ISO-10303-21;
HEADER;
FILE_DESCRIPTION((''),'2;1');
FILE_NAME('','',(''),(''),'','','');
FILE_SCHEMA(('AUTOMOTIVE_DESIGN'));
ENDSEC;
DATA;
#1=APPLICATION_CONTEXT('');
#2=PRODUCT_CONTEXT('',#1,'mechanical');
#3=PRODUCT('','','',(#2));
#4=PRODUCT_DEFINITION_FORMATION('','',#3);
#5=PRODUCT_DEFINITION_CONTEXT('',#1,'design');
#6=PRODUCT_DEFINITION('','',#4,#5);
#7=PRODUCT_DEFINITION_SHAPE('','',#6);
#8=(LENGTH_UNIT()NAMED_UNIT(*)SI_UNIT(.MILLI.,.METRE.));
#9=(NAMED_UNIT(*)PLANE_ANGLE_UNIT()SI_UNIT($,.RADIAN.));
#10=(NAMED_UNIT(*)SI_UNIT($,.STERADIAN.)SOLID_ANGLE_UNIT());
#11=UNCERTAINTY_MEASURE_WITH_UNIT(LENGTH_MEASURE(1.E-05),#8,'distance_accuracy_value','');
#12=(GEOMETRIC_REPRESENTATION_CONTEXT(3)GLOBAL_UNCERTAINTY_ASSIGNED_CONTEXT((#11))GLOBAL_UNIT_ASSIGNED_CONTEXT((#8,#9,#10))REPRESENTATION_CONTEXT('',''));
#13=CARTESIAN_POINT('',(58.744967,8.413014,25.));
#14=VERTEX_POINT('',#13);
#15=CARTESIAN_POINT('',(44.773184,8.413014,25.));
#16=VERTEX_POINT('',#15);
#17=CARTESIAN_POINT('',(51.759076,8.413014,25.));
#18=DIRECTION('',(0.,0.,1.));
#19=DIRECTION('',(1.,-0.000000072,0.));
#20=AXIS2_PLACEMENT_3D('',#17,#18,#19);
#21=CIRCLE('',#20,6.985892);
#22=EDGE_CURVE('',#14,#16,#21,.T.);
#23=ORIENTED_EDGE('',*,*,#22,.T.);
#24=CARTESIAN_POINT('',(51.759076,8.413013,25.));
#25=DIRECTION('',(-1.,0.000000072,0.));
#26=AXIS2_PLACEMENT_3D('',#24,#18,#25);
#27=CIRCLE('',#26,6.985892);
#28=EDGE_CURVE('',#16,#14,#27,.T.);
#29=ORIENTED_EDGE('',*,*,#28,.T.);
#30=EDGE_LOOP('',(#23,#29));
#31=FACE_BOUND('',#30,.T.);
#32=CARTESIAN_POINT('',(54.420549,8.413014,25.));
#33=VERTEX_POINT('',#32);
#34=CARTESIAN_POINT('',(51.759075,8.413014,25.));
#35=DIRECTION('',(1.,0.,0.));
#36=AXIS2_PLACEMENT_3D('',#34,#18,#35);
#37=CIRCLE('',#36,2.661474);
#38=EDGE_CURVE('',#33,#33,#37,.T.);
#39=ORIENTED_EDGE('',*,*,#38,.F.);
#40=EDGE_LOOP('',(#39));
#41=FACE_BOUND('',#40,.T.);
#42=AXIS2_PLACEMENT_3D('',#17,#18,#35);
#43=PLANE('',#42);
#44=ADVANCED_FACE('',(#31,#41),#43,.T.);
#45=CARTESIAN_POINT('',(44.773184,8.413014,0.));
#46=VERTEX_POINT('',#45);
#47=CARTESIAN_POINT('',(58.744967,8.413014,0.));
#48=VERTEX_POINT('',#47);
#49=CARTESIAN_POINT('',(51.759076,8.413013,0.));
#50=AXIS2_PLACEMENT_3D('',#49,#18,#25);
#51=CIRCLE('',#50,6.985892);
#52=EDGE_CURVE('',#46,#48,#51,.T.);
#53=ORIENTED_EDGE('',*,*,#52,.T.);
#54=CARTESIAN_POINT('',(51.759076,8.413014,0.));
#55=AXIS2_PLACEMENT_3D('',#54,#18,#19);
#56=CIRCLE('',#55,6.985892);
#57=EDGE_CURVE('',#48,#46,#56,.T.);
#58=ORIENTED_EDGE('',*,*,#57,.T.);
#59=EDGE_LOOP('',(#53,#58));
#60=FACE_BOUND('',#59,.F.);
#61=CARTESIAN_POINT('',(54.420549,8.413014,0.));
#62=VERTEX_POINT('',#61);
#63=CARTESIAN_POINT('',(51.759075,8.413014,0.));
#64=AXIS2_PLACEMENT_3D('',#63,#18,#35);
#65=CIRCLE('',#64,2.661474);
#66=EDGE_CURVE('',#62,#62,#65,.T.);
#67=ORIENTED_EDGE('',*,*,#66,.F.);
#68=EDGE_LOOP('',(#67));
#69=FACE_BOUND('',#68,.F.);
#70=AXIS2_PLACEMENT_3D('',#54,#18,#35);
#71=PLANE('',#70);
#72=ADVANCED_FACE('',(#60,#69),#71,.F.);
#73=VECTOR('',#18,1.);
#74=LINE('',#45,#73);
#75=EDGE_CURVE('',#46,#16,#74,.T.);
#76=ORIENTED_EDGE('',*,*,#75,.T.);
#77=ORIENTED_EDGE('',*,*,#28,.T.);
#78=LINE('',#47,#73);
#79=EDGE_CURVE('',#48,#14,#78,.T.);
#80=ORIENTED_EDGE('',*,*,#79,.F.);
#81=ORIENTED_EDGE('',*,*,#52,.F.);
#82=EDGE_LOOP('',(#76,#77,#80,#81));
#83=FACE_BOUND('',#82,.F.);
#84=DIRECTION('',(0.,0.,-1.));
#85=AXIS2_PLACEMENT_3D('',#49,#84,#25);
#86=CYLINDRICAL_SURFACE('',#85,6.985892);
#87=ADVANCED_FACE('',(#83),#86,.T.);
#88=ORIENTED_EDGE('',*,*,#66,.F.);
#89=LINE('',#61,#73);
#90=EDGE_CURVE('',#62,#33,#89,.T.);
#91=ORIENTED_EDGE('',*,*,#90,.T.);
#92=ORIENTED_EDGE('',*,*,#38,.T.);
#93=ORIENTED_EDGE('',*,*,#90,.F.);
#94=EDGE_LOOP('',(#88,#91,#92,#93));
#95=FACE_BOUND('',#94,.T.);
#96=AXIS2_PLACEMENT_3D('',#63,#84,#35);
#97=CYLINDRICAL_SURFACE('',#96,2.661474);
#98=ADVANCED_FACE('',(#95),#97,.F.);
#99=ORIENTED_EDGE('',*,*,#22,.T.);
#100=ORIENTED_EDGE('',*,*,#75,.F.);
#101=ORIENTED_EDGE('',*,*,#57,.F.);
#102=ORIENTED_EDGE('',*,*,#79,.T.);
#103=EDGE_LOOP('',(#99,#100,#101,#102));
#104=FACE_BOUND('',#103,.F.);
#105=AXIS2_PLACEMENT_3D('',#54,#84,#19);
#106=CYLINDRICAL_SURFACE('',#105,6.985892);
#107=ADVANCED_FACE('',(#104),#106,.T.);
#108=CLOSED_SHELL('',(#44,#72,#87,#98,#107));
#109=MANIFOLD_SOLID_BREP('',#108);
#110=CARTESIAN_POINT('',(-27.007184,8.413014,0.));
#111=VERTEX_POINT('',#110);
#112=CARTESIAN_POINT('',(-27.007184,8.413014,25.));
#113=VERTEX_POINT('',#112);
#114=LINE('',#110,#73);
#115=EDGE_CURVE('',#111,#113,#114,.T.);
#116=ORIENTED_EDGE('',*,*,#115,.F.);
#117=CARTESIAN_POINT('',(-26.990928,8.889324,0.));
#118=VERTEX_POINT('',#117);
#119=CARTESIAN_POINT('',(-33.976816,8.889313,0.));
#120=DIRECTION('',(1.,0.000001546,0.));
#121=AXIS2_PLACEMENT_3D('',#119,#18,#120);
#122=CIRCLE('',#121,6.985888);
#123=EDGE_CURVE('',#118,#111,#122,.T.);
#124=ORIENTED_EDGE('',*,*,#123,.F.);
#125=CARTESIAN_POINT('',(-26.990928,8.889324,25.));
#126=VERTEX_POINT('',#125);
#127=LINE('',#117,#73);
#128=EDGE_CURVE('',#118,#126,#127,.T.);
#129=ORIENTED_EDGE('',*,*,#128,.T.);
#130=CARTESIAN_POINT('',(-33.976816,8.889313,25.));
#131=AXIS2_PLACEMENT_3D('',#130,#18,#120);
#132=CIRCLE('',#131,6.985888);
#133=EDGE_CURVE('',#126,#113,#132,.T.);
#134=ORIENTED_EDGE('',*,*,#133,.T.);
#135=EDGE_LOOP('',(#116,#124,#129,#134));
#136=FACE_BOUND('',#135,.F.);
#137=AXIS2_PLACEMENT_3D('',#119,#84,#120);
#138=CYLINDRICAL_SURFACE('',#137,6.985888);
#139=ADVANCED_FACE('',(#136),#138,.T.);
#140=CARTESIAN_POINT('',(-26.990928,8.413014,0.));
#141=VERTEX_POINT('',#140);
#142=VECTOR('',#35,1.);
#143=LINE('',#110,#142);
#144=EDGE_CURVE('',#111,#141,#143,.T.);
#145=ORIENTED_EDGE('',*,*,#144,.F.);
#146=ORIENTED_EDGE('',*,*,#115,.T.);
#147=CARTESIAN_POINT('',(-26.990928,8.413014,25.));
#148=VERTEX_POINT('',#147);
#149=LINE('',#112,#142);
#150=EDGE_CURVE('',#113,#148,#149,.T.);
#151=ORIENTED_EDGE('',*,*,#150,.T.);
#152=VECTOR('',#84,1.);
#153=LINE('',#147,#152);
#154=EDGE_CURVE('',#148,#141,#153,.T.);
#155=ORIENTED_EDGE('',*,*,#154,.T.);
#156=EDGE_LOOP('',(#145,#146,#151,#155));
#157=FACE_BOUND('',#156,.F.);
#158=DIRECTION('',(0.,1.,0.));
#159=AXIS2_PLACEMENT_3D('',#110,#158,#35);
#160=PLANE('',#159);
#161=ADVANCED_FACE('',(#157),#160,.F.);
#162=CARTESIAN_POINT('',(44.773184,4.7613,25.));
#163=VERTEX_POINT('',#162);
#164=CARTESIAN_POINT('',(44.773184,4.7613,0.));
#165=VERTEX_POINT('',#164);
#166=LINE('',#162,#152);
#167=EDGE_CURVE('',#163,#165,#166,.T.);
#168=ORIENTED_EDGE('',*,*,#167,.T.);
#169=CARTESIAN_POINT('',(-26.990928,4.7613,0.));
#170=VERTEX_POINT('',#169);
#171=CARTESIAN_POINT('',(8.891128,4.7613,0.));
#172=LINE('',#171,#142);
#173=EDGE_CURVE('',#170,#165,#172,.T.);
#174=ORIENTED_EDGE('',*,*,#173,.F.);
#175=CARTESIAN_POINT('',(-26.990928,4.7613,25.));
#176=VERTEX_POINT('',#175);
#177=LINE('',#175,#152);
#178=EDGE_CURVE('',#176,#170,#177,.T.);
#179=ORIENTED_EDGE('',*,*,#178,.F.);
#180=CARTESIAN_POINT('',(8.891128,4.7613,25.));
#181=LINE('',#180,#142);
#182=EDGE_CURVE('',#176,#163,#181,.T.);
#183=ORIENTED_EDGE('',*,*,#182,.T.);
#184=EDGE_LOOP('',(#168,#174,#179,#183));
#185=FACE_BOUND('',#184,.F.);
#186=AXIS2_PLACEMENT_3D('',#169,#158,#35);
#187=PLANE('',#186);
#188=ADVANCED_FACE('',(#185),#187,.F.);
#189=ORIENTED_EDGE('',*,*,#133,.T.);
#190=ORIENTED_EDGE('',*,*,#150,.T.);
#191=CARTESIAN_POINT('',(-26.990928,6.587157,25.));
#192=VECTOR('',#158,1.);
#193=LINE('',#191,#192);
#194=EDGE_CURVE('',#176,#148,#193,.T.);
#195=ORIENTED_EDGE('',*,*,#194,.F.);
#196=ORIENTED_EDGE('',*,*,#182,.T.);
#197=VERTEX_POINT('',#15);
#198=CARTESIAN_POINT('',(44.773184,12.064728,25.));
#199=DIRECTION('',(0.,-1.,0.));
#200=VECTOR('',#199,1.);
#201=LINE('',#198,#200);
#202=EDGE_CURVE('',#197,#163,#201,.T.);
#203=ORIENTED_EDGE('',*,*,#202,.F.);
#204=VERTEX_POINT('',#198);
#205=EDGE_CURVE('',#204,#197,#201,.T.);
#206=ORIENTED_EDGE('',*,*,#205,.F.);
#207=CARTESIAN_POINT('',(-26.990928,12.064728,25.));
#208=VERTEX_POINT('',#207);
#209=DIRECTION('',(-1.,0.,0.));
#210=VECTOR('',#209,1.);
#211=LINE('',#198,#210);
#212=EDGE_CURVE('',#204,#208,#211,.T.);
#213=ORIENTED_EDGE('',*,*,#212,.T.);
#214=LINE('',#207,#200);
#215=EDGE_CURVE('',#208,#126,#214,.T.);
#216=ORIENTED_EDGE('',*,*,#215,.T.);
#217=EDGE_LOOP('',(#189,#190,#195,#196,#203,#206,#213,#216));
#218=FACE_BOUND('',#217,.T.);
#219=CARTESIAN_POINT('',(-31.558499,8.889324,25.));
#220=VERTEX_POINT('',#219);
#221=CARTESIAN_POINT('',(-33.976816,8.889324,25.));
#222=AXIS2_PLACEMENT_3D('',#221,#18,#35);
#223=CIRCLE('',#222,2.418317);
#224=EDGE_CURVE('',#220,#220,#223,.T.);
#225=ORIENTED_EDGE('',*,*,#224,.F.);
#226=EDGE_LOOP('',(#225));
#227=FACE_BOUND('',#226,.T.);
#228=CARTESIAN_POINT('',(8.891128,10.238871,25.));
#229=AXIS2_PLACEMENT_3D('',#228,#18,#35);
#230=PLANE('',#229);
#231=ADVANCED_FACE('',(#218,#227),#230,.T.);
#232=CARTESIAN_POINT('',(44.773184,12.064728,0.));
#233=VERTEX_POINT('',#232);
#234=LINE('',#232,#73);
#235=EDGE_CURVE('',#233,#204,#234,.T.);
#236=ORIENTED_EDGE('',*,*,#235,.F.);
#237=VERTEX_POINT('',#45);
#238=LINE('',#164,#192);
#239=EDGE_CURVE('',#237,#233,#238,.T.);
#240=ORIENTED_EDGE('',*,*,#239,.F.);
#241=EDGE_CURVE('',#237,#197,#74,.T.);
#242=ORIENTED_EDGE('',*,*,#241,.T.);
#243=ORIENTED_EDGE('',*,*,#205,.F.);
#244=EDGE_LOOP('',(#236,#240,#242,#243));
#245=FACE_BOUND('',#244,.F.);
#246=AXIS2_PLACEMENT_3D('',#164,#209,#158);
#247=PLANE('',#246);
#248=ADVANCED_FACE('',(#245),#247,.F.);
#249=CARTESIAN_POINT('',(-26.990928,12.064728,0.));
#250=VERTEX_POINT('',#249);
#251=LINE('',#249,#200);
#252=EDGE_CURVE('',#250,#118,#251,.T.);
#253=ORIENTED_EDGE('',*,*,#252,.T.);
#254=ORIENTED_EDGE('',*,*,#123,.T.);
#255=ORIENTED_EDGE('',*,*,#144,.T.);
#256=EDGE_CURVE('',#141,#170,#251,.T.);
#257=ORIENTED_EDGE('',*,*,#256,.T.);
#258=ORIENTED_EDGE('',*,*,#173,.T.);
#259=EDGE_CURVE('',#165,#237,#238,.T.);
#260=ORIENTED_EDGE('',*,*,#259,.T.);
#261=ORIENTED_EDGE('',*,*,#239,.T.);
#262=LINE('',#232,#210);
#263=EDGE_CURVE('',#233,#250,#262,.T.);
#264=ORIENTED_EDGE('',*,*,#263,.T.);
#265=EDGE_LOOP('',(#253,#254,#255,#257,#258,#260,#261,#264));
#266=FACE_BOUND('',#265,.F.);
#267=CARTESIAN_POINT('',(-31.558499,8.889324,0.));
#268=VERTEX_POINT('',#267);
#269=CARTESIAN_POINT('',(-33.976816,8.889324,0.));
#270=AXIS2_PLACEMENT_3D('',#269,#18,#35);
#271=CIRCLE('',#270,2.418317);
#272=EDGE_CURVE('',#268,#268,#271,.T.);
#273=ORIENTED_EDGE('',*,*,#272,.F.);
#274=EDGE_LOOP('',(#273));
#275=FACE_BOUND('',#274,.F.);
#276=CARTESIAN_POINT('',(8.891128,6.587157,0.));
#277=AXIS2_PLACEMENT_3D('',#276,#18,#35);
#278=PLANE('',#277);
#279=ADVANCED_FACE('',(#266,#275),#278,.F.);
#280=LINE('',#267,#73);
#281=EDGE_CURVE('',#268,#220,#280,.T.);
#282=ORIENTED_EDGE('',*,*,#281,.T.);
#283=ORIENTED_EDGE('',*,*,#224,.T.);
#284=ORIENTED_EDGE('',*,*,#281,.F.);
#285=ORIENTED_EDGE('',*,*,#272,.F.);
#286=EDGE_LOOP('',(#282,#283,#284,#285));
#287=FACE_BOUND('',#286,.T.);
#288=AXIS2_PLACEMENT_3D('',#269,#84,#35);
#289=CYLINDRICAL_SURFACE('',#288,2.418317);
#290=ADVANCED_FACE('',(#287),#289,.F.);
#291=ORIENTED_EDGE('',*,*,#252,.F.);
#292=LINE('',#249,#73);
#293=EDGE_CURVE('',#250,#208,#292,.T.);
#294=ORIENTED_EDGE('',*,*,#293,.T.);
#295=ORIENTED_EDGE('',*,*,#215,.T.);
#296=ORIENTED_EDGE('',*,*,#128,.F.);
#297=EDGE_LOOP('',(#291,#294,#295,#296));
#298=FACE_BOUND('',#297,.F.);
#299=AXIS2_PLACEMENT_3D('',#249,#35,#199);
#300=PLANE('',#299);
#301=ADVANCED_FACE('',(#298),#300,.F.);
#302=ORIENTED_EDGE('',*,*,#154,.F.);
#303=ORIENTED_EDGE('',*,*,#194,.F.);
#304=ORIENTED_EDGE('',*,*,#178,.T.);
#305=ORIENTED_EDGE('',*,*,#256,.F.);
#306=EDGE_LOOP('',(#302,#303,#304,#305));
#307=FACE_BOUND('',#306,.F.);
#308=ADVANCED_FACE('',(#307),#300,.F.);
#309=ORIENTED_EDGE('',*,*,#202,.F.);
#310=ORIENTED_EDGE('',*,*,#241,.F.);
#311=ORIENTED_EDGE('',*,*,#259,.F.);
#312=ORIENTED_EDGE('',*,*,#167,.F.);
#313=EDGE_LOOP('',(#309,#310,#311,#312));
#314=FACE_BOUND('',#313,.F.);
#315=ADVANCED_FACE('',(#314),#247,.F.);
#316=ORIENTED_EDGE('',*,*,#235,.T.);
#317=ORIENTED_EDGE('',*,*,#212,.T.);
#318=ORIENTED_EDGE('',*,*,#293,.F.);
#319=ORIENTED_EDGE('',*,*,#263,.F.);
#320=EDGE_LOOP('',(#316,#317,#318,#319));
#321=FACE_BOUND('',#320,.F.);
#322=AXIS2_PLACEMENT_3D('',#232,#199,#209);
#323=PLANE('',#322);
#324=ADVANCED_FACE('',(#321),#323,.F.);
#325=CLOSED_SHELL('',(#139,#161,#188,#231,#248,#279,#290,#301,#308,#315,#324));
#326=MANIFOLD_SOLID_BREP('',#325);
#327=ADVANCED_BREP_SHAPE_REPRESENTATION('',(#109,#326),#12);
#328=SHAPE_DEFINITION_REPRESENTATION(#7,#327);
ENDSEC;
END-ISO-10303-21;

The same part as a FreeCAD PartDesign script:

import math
import FreeCAD as App
import Part
import Sketcher

V = App.Vector
Q = App.Units.Quantity

doc = App.newDocument("Part")
body = doc.addObject("PartDesign::Body", "Body")
body.AllowCompound = True

# Sketch on XY plane
sketch1 = body.newObject("Sketcher::SketchObject", "Sketch")
sketch1.AttachmentSupport = (doc.getObject("XY_Plane"), [""])
sketch1.MapMode = "FlatFace"
sketch1.addGeometry(Part.LineSegment(V(-26.990928, 4.7613, 0), V(44.773184, 4.7613, 0)), False)
sketch1.addGeometry(Part.LineSegment(V(44.773184, 4.7613, 0), V(44.773184, 12.064728, 0)), False)
sketch1.addGeometry(Part.LineSegment(V(44.773184, 12.064728, 0), V(-26.990928, 12.064728, 0)), False)
sketch1.addGeometry(Part.LineSegment(V(-26.990928, 12.064728, 0), V(-26.990928, 4.7613, 0)), False)
sketch1.addConstraint(Sketcher.Constraint("Coincident", 0, 2, 1, 1))
sketch1.addConstraint(Sketcher.Constraint("Coincident", 1, 2, 2, 1))
sketch1.addConstraint(Sketcher.Constraint("Coincident", 2, 2, 3, 1))
sketch1.addConstraint(Sketcher.Constraint("Coincident", 3, 2, 0, 1))
sketch1.addConstraint(Sketcher.Constraint("Horizontal", 0))
sketch1.addConstraint(Sketcher.Constraint("Vertical", 1))
sketch1.addConstraint(Sketcher.Constraint("Horizontal", 2))
sketch1.addConstraint(Sketcher.Constraint("Vertical", 3))
sketch1.addConstraint(Sketcher.Constraint("DistanceX", 0, 1, 0, 2, Q("71.764112 mm")))
sketch1.addConstraint(Sketcher.Constraint("DistanceY", 1, 1, 1, 2, Q("7.303428 mm")))
sketch1.addConstraint(Sketcher.Constraint("DistanceY", -1, 1, 0, 2, Q("4.7613 mm")))
sketch1.addConstraint(Sketcher.Constraint("DistanceX", 2, 2, -1, 1, Q("26.990928 mm")))
pad1 = body.newObject("PartDesign::Pad", "Pad")
pad1.Profile = sketch1
pad1.Length = 3

# Sketch on XY plane
sketch2 = body.newObject("Sketcher::SketchObject", "Sketch001")
sketch2.AttachmentSupport = (doc.getObject("XY_Plane"), [""])
sketch2.MapMode = "FlatFace"
sketch2.addGeometry(Part.ArcOfCircle(Part.Circle(V(51.759076, 8.413014, 0), V(0, 0, 1), 6.985892), math.radians(-0.000004), math.radians(180.000004)), False)
sketch2.addGeometry(Part.ArcOfCircle(Part.Circle(V(51.759076, 8.413013, 0), V(0, 0, 1), 6.985892), math.radians(179.999996), math.radians(360.000004)), False)
sketch2.addGeometry(Part.Circle(V(51.759075, 8.413014, 0), V(0, 0, 1), 2.661474), False)
sketch2.addGeometry(Part.LineSegment(V(44.773184, 12.064728, 0), V(-26.990928, 12.064728, 0)), False)
sketch2.addGeometry(Part.LineSegment(V(-26.990928, 12.064728, 0), V(-26.990928, 8.889324, 0)), False)
sketch2.addGeometry(Part.ArcOfCircle(Part.Circle(V(-33.976816, 8.889313, 0), V(0, 0, 1), 6.985888), math.radians(0.000089), math.radians(356.09053)), False)
sketch2.addGeometry(Part.LineSegment(V(-27.007184, 8.413014, 0), V(-26.990928, 8.413014, 0)), False)
sketch2.addGeometry(Part.LineSegment(V(-26.990928, 8.413014, 0), V(-26.990928, 4.7613, 0)), False)
sketch2.addGeometry(Part.LineSegment(V(-26.990928, 4.7613, 0), V(44.773184, 4.7613, 0)), False)
sketch2.addGeometry(Part.LineSegment(V(44.773184, 4.7613, 0), V(44.773184, 8.413014, 0)), False)
sketch2.addGeometry(Part.LineSegment(V(44.773184, 8.413014, 0), V(44.773184, 12.064728, 0)), False)
sketch2.addGeometry(Part.Circle(V(-33.976816, 8.889324, 0), V(0, 0, 1), 2.418317), False)
sketch2.addConstraint(Sketcher.Constraint("Coincident", 0, 1, 1, 2))
sketch2.addConstraint(Sketcher.Constraint("Coincident", 1, 1, 0, 2))
sketch2.addConstraint(Sketcher.Constraint("Coincident", 3, 2, 4, 1))
sketch2.addConstraint(Sketcher.Constraint("Coincident", 4, 2, 5, 1))
sketch2.addConstraint(Sketcher.Constraint("Coincident", 5, 2, 6, 1))
sketch2.addConstraint(Sketcher.Constraint("Coincident", 6, 2, 7, 1))
sketch2.addConstraint(Sketcher.Constraint("Coincident", 7, 2, 8, 1))
sketch2.addConstraint(Sketcher.Constraint("Coincident", 8, 2, 9, 1))
sketch2.addConstraint(Sketcher.Constraint("Coincident", 9, 2, 10, 1))
sketch2.addConstraint(Sketcher.Constraint("Coincident", 10, 2, 3, 1))
sketch2.addConstraint(Sketcher.Constraint("Horizontal", 3))
sketch2.addConstraint(Sketcher.Constraint("Vertical", 4))
sketch2.addConstraint(Sketcher.Constraint("Horizontal", 6))
sketch2.addConstraint(Sketcher.Constraint("Vertical", 7))
sketch2.addConstraint(Sketcher.Constraint("Horizontal", 8))
sketch2.addConstraint(Sketcher.Constraint("Vertical", 9))
sketch2.addConstraint(Sketcher.Constraint("Vertical", 10))
sketch2.addConstraint(Sketcher.Constraint("Coincident", 2, 3, 0, 3))
sketch2.addConstraint(Sketcher.Constraint("Coincident", 9, 2, 1, 1))
sketch2.addConstraint(Sketcher.Constraint("Diameter", 2, Q("5.322948 mm")))
sketch2.addConstraint(Sketcher.Constraint("Radius", 0, Q("6.985892 mm")))
sketch2.addConstraint(Sketcher.Constraint("DistanceX", 5, 3, 1, 1, Q("78.75 mm")))
sketch2.addConstraint(Sketcher.Constraint("Diameter", 11, Q("4.836634 mm")))
sketch2.addConstraint(Sketcher.Constraint("Radius", 5, Q("6.985888 mm")))
sketch2.addConstraint(Sketcher.Constraint("DistanceX", 8, 1, 8, 2, Q("71.764112 mm")))
sketch2.addConstraint(Sketcher.Constraint("DistanceY", -1, 1, 7, 2, Q("4.7613 mm")))
sketch2.addConstraint(Sketcher.Constraint("DistanceY", 2, 3, 5, 3, Q("0.476299 mm")))
sketch2.addConstraint(Sketcher.Constraint("DistanceY", 1, 3, 5, 3, Q("0.4763 mm")))
sketch2.addConstraint(Sketcher.Constraint("DistanceY", 0, 1, 5, 3, Q("0.476299 mm")))
sketch2.addConstraint(Sketcher.Constraint("DistanceY", 1, 1, 5, 3, Q("0.476299 mm")))
sketch2.addConstraint(Sketcher.Constraint("DistanceY", 5, 2, 5, 3, Q("0.476299 mm")))
sketch2.addConstraint(Sketcher.Constraint("DistanceY", 4, 2, 4, 1, Q("3.175404 mm")))
sketch2.addConstraint(Sketcher.Constraint("DistanceY", 7, 2, 7, 1, Q("3.651714 mm")))
sketch2.addConstraint(Sketcher.Constraint("DistanceY", 10, 1, 10, 2, Q("3.651714 mm")))
sketch2.addConstraint(Sketcher.Constraint("DistanceX", 3, 2, -1, 1, Q("26.990928 mm")))
sketch2.addConstraint(Sketcher.Constraint("DistanceX", 11, 3, 2, 3, Q("85.735891 mm")))
sketch2.addConstraint(Sketcher.Constraint("DistanceY", 2, 3, 11, 3, Q("0.47631 mm")))
pad2 = body.newObject("PartDesign::Pad", "Pad001")
pad2.Profile = sketch2
pad2.Length = 25

doc.recompute()
